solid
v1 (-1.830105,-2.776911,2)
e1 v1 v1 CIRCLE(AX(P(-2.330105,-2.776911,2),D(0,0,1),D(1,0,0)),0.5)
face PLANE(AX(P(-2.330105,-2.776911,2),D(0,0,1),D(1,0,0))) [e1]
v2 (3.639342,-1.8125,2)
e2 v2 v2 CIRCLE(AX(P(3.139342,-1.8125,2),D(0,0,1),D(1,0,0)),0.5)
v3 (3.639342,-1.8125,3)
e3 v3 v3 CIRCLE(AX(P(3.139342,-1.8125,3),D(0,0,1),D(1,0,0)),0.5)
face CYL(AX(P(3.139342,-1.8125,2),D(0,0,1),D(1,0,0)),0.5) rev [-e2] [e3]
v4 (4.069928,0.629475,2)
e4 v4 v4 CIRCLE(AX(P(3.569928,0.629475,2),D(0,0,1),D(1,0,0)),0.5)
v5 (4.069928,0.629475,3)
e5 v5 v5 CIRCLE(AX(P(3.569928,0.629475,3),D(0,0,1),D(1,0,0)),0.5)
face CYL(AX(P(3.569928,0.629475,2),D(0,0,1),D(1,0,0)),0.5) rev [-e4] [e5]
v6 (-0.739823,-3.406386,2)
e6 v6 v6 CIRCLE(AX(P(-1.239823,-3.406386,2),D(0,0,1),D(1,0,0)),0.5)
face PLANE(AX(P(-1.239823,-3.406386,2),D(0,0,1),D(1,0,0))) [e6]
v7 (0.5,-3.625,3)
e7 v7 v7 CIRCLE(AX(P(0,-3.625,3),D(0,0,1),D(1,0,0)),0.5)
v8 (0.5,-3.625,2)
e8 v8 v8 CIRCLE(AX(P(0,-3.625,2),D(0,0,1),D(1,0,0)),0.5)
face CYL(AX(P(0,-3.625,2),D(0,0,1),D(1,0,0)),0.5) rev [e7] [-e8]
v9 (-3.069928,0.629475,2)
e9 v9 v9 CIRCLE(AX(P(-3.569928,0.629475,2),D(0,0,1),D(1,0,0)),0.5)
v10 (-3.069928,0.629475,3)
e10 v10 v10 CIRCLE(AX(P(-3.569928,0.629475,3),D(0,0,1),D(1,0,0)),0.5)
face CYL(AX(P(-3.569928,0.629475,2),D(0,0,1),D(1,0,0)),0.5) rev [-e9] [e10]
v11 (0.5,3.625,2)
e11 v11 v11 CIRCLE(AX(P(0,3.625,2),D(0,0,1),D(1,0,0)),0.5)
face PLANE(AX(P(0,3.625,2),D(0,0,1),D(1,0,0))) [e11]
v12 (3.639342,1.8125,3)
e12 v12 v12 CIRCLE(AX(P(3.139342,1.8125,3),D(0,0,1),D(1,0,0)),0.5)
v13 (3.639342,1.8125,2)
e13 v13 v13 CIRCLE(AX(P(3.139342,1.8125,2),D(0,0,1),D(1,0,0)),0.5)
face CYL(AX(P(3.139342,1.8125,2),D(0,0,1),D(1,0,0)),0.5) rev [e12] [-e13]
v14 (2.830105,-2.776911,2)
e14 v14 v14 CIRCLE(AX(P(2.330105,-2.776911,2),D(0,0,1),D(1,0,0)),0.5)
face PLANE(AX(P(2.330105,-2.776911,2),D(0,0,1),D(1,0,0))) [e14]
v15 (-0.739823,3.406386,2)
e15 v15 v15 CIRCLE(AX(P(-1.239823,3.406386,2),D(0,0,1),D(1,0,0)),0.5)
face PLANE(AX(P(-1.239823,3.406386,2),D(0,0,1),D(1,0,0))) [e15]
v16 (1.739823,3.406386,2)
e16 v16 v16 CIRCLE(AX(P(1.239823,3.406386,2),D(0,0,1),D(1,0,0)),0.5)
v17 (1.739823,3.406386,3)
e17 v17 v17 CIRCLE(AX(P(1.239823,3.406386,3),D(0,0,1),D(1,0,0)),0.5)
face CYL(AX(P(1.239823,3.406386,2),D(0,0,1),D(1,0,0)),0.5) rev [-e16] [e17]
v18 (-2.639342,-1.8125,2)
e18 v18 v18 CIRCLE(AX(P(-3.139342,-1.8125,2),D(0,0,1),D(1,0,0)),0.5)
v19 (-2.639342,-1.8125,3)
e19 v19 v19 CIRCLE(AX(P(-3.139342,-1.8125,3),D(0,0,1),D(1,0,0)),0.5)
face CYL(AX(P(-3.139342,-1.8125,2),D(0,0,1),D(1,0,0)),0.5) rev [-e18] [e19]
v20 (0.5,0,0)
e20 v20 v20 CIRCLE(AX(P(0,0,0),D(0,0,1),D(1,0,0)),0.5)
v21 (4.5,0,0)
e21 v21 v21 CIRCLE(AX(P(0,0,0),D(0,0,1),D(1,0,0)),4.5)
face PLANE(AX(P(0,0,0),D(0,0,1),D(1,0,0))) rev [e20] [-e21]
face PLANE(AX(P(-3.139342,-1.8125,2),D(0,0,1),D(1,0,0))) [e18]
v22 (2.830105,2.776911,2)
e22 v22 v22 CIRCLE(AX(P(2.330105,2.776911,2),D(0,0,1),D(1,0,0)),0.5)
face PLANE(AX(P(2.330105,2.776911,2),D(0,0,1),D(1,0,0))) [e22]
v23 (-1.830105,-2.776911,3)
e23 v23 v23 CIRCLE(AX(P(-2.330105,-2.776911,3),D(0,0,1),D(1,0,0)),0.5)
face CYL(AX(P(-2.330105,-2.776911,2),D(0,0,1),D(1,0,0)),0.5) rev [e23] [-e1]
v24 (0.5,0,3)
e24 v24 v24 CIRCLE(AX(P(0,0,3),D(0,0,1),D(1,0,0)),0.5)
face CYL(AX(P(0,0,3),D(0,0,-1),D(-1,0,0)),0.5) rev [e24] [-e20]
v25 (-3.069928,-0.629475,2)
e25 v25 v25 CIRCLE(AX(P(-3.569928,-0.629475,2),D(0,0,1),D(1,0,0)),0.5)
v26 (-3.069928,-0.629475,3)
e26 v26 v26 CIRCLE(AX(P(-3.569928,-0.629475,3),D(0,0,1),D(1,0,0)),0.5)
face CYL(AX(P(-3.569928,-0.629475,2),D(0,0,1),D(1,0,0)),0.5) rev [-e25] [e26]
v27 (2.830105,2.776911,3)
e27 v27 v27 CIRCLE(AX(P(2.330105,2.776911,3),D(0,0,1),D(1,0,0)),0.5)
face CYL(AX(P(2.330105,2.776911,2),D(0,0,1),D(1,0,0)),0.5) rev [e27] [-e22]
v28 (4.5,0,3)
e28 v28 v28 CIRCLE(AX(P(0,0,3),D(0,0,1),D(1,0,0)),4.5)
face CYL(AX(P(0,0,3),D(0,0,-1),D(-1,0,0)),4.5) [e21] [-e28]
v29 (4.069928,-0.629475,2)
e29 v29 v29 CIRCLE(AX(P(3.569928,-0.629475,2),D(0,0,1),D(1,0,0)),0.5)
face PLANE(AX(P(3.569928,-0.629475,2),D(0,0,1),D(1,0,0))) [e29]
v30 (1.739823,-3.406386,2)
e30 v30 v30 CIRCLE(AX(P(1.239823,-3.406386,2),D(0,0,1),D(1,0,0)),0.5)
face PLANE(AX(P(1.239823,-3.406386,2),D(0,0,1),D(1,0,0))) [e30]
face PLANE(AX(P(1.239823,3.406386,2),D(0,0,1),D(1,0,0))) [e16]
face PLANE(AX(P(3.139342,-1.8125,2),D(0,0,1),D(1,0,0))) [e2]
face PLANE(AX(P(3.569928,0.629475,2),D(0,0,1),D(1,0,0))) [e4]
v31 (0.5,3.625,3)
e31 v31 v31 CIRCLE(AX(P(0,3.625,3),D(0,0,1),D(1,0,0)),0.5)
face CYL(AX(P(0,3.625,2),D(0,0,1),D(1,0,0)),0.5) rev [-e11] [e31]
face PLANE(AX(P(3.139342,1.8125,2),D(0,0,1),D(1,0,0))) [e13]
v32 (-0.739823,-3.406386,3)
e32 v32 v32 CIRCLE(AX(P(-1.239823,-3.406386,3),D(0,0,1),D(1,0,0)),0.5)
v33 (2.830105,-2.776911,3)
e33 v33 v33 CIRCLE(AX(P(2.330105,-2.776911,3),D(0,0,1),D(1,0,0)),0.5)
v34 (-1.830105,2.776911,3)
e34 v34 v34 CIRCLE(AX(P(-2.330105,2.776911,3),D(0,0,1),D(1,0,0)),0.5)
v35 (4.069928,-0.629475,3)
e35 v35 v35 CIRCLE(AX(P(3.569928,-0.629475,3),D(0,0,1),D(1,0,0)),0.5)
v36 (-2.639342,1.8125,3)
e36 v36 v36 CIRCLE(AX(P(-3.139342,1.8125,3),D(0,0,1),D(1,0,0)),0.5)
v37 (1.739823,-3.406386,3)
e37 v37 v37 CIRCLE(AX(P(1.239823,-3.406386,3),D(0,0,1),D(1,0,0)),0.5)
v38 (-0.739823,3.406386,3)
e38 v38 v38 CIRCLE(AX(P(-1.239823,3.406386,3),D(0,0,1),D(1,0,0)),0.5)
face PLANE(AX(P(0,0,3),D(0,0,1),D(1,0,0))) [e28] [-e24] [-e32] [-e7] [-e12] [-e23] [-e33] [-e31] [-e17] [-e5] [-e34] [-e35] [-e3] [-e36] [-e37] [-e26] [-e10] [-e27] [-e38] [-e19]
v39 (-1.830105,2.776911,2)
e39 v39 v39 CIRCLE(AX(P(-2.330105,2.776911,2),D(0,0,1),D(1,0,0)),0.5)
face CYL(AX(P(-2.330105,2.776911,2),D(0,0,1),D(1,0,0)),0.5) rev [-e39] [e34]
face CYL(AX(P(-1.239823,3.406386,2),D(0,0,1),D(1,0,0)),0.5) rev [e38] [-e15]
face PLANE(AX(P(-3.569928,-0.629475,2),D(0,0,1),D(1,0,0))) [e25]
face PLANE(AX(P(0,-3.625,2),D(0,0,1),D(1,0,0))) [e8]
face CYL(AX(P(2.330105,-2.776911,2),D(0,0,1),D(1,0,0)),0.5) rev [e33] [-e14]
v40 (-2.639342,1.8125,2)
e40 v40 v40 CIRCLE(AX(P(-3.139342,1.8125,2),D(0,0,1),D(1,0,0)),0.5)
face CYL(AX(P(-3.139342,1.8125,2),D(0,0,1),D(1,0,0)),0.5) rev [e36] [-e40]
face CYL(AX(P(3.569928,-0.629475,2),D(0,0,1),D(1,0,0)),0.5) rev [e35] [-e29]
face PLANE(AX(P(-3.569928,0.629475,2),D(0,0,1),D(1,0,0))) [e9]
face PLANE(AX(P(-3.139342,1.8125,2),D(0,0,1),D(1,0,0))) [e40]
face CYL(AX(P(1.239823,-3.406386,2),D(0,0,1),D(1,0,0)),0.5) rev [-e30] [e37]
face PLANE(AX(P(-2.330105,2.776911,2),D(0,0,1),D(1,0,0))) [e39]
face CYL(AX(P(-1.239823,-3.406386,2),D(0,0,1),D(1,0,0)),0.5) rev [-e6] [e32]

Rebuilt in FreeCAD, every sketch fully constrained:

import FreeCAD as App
import Part
import Sketcher
Q = App.Units.Quantity

doc = App.newDocument("Part")
body = doc.addObject("PartDesign::Body", "Body")

sketch1 = doc.addObject("Sketcher::SketchObject", "Sketch")
body.addObject(sketch1)
sketch1.AttachmentSupport = (doc.XY_Plane, [""])
sketch1.MapMode = "FlatFace"
sketch1.addGeometry(Part.Circle(App.Vector(0, 0, 0), App.Vector(0, 0, 1), 4.5), False)
sketch1.addGeometry(Part.Circle(App.Vector(0, 0, 0), App.Vector(0, 0, 1), 0.5), False)
sketch1.addConstraint(Sketcher.Constraint("Coincident", 0, 3, -1, 1))
sketch1.addConstraint(Sketcher.Constraint("Coincident", 1, 3, -1, 1))
sketch1.addConstraint(Sketcher.Constraint("Diameter", 0, Q("9 mm")))
sketch1.addConstraint(Sketcher.Constraint("Diameter", 1, Q("1 mm")))
pad1 = doc.addObject("PartDesign::Pad", "Pad")
body.addObject(pad1)
pad1.Profile = sketch1
pad1.Length = 3

sketch2 = doc.addObject("Sketcher::SketchObject", "Sketch001")
body.addObject(sketch2)
sketch2.AttachmentSupport = (doc.XY_Plane, [""])
sketch2.MapMode = "FlatFace"
sketch2.AttachmentOffset = App.Placement(App.Vector(0, 0, 3), App.Rotation())
sketch2.addGeometry(Part.Circle(App.Vector(0, 3.6, 0), App.Vector(0, 0, 1), 0.5), False)
sketch2.addGeometry(Part.Circle(App.Vector(1.2, 3.4, 0), App.Vector(0, 0, 1), 0.5), False)
sketch2.addGeometry(Part.Circle(App.Vector(2.3, 2.8, 0), App.Vector(0, 0, 1), 0.5), False)
sketch2.addGeometry(Part.Circle(App.Vector(3.1, 1.8, 0), App.Vector(0, 0, 1), 0.5), False)
sketch2.addGeometry(Part.Circle(App.Vector(3.6, 0.6, 0), App.Vector(0, 0, 1), 0.5), False)
sketch2.addGeometry(Part.Circle(App.Vector(3.6, -0.6, 0), App.Vector(0, 0, 1), 0.5), False)
sketch2.addGeometry(Part.Circle(App.Vector(3.1, -1.8, 0), App.Vector(0, 0, 1), 0.5), False)
sketch2.addGeometry(Part.Circle(App.Vector(2.3, -2.8, 0), App.Vector(0, 0, 1), 0.5), False)
sketch2.addGeometry(Part.Circle(App.Vector(1.2, -3.4, 0), App.Vector(0, 0, 1), 0.5), False)
sketch2.addGeometry(Part.Circle(App.Vector(0, -3.6, 0), App.Vector(0, 0, 1), 0.5), False)
sketch2.addGeometry(Part.Circle(App.Vector(-1.2, -3.4, 0), App.Vector(0, 0, 1), 0.5), False)
sketch2.addGeometry(Part.Circle(App.Vector(-2.3, -2.8, 0), App.Vector(0, 0, 1), 0.5), False)
sketch2.addGeometry(Part.Circle(App.Vector(-3.1, -1.8, 0), App.Vector(0, 0, 1), 0.5), False)
sketch2.addGeometry(Part.Circle(App.Vector(-3.6, -0.6, 0), App.Vector(0, 0, 1), 0.5), False)
sketch2.addGeometry(Part.Circle(App.Vector(-3.6, 0.6, 0), App.Vector(0, 0, 1), 0.5), False)
sketch2.addGeometry(Part.Circle(App.Vector(-3.1, 1.8, 0), App.Vector(0, 0, 1), 0.5), False)
sketch2.addGeometry(Part.Circle(App.Vector(-2.3, 2.8, 0), App.Vector(0, 0, 1), 0.5), False)
sketch2.addGeometry(Part.Circle(App.Vector(-1.2, 3.4, 0), App.Vector(0, 0, 1), 0.5), False)
sketch2.addConstraint(Sketcher.Constraint("Equal", 0, 1))
sketch2.addConstraint(Sketcher.Constraint("Equal", 1, 2))
sketch2.addConstraint(Sketcher.Constraint("Equal", 2, 3))
sketch2.addConstraint(Sketcher.Constraint("Equal", 3, 4))
sketch2.addConstraint(Sketcher.Constraint("Equal", 4, 5))
sketch2.addConstraint(Sketcher.Constraint("Equal", 5, 6))
sketch2.addConstraint(Sketcher.Constraint("Equal", 6, 7))
sketch2.addConstraint(Sketcher.Constraint("Equal", 7, 8))
sketch2.addConstraint(Sketcher.Constraint("Equal", 8, 9))
sketch2.addConstraint(Sketcher.Constraint("Equal", 9, 10))
sketch2.addConstraint(Sketcher.Constraint("Equal", 10, 11))
sketch2.addConstraint(Sketcher.Constraint("Equal", 11, 12))
sketch2.addConstraint(Sketcher.Constraint("Equal", 12, 13))
sketch2.addConstraint(Sketcher.Constraint("Equal", 13, 14))
sketch2.addConstraint(Sketcher.Constraint("Equal", 14, 15))
sketch2.addConstraint(Sketcher.Constraint("Equal", 15, 16))
sketch2.addConstraint(Sketcher.Constraint("Equal", 16, 17))
sketch2.addConstraint(Sketcher.Constraint("Symmetric", 0, 3, 9, 3, -1, 1))
sketch2.addConstraint(Sketcher.Constraint("Symmetric", 1, 3, 10, 3, -1, 1))
sketch2.addConstraint(Sketcher.Constraint("Symmetric", 2, 3, 11, 3, -1, 1))
sketch2.addConstraint(Sketcher.Constraint("Symmetric", 3, 3, 12, 3, -1, 1))
sketch2.addConstraint(Sketcher.Constraint("Symmetric", 4, 3, 13, 3, -1, 1))
sketch2.addConstraint(Sketcher.Constraint("Symmetric", 5, 3, 14, 3, -1, 1))
sketch2.addConstraint(Sketcher.Constraint("Symmetric", 6, 3, 15, 3, -1, 1))
sketch2.addConstraint(Sketcher.Constraint("Symmetric", 7, 3, 16, 3, -1, 1))
sketch2.addConstraint(Sketcher.Constraint("Symmetric", 8, 3, 17, 3, -1, 1))
sketch2.addConstraint(Sketcher.Constraint("Symmetric", 8, 3, 10, 3, -2))
sketch2.addConstraint(Sketcher.Constraint("Symmetric", 7, 3, 11, 3, -2))
sketch2.addConstraint(Sketcher.Constraint("Symmetric", 6, 3, 12, 3, -2))
sketch2.addConstraint(Sketcher.Constraint("Symmetric", 5, 3, 13, 3, -2))
sketch2.addConstraint(Sketcher.Constraint("PointOnObject", 0, 3, -2))
sketch2.addConstraint(Sketcher.Constraint("Diameter", 0, Q("1 mm")))
sketch2.addConstraint(Sketcher.Constraint("DistanceY", -1, 1, 0, 3, Q("3.625 mm")))
sketch2.addConstraint(Sketcher.Constraint("DistanceY", 6, 3, 3, 3, Q("3.625 mm")))
sketch2.addConstraint(Sketcher.Constraint("DistanceY", -1, 1, 2, 3, Q("2.776911 mm")))
sketch2.addConstraint(Sketcher.Constraint("DistanceX", -1, 1, 4, 3, Q("3.569928 mm")))
sketch2.addConstraint(Sketcher.Constraint("DistanceX", 1, 3, 3, 3, Q("1.899519 mm")))
sketch2.addConstraint(Sketcher.Constraint("DistanceY", 4, 3, 1, 3, Q("2.776911 mm")))
sketch2.addConstraint(Sketcher.Constraint("DistanceY", 5, 3, 4, 3, Q("1.258949 mm")))
sketch2.addConstraint(Sketcher.Constraint("DistanceX", 10, 3, 7, 3, Q("3.569928 mm")))
sketch2.addConstraint(Sketcher.Constraint("DistanceX", 10, 3, 5, 3, Q("4.809751 mm")))
pocket1 = doc.addObject("PartDesign::Pocket", "Pocket")
body.addObject(pocket1)
pocket1.Profile = sketch2
pocket1.Length = 1

doc.recompute()
